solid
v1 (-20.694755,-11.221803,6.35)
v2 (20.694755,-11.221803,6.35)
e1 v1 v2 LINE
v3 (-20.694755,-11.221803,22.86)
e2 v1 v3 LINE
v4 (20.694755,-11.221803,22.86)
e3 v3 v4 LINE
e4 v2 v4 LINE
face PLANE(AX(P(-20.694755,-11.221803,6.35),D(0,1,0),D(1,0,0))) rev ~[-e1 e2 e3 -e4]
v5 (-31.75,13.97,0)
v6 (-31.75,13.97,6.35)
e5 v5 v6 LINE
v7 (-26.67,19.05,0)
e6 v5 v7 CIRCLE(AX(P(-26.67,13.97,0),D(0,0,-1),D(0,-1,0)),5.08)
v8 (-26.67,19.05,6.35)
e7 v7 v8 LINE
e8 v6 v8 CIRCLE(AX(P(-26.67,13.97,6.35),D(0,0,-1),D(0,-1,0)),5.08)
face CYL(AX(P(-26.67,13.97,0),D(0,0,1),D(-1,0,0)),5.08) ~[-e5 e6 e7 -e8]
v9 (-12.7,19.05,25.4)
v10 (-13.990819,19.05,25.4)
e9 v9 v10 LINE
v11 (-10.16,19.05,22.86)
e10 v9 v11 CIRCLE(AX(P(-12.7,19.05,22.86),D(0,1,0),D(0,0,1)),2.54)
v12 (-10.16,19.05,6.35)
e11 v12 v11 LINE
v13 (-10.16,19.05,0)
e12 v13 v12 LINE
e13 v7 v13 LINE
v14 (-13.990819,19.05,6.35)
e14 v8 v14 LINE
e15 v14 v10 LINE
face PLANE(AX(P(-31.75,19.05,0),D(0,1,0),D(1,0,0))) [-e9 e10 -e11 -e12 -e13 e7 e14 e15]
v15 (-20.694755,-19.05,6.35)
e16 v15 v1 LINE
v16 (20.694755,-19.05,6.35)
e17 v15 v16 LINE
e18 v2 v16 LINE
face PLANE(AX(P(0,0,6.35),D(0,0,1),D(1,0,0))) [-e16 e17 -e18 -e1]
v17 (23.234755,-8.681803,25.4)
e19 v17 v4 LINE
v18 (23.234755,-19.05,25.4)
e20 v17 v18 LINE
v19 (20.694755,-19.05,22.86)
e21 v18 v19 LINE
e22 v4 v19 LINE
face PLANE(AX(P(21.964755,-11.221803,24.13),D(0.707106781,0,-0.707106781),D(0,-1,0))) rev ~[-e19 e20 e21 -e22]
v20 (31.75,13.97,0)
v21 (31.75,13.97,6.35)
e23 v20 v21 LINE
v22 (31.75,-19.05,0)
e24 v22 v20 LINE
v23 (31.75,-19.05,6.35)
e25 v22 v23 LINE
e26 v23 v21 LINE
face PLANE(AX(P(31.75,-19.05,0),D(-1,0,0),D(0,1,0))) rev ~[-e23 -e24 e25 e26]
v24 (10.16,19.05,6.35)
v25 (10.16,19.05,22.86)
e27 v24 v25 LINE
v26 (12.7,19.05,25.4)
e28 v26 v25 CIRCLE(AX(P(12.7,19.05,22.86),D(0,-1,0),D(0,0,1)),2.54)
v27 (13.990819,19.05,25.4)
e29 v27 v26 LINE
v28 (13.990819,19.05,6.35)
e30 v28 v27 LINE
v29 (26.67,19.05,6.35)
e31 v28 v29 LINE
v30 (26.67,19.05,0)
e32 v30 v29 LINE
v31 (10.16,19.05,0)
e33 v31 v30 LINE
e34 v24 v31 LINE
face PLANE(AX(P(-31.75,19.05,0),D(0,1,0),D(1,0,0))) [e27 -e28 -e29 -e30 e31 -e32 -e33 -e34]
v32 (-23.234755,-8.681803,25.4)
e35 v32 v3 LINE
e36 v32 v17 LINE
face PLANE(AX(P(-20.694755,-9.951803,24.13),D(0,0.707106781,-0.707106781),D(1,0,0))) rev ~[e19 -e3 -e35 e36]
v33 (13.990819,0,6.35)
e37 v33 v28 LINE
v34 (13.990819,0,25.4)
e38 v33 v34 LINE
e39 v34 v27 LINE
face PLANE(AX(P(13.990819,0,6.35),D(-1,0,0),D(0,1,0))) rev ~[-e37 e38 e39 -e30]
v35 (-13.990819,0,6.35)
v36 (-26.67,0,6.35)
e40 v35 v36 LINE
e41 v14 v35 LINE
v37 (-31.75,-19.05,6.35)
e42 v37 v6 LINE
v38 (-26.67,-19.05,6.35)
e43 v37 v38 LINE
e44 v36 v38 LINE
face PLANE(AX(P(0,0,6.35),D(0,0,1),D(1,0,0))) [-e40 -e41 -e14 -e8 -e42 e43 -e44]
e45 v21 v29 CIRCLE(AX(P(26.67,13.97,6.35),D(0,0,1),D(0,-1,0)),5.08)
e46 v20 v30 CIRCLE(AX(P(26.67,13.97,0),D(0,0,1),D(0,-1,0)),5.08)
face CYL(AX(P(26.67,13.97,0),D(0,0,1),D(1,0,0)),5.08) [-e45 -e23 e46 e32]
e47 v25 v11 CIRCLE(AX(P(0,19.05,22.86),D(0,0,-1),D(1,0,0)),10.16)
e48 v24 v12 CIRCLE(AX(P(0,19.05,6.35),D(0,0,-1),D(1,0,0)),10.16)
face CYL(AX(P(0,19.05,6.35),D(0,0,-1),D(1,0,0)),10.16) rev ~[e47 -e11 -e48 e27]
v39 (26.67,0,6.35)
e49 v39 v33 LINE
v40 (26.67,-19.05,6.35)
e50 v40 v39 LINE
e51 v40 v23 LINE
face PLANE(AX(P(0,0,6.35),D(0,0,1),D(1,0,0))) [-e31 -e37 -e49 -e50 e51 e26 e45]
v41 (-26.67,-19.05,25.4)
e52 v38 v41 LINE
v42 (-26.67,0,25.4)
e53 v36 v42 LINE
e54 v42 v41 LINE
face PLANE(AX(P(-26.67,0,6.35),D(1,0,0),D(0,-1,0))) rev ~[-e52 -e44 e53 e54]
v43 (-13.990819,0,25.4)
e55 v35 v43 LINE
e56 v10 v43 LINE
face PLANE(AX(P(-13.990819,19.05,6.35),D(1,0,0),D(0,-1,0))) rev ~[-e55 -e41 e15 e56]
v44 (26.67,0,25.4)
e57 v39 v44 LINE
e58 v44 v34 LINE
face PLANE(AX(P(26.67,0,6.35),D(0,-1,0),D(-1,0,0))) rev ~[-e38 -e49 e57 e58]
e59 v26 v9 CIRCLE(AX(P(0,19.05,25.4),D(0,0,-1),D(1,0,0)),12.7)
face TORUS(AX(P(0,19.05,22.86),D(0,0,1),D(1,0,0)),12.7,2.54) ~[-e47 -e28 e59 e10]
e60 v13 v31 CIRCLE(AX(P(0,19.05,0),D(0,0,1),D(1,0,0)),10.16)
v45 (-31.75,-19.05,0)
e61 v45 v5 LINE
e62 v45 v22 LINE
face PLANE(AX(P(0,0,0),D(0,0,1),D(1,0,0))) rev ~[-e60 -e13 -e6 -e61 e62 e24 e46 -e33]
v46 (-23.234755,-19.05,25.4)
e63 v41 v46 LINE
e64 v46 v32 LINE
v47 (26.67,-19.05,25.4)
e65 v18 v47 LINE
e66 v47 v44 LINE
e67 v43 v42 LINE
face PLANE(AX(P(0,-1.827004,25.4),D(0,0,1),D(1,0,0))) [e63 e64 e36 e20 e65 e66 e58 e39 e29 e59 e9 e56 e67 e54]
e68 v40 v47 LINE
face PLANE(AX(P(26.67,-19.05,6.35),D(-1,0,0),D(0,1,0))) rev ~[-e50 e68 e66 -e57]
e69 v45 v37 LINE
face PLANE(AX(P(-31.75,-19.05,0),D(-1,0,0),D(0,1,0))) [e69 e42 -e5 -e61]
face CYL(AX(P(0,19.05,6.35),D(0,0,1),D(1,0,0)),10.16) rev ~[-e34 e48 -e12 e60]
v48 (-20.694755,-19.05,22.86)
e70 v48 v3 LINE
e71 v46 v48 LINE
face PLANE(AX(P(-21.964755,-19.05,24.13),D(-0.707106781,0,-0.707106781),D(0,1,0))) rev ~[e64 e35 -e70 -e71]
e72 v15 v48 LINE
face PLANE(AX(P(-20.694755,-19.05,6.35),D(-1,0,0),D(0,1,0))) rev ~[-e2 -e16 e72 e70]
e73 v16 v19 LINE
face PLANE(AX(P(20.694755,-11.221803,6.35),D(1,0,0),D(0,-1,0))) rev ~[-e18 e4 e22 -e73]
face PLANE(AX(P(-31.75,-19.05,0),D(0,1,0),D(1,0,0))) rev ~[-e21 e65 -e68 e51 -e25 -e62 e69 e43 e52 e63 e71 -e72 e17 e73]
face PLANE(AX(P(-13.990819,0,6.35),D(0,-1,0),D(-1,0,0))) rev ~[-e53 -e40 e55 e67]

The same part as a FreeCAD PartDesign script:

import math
import FreeCAD as App
import Part
import Sketcher
Q = App.Units.Quantity


def edges_at(feature, points):
    """Names of the edges that pass closest to the given points."""
    edges = feature.Shape.Edges
    near = lambda p: min(range(len(edges)), key=lambda i: edges[i].distToShape(Part.Vertex(*p))[0])
    return sorted({f"Edge{near(p) + 1}" for p in points})

doc = App.newDocument("Part")
params = doc.addObject("Spreadsheet::Sheet", "Params")
for row, (alias, value) in enumerate([
    ("sketch1_width", "2.5 in"),
    ("sketch1_height", "1.5 in"),
    ("pad1_length", "0.25 in"),
    ("fillet_radius", "0.2 in"),
    ("sketch2_radius", "0.4 in"),
    ("sketch2_height", "0.75 in"),
    ("pad2_length", "0.75 in"),
    ("sketch3_diameter", "0.8 in"),
    ("pocket1_length", "1 in"),
    ("fillet2_radius", "0.1 in"),
    ("chamfer_size", "0.1 in"),
], start=1):
    params.set(f"A{row}", alias)
    params.set(f"B{row}", "=" + value)
    params.setAlias(f"B{row}", alias)

body = doc.addObject("PartDesign::Body", "Body")

sketch1 = doc.addObject("Sketcher::SketchObject", "Sketch")
body.addObject(sketch1)
sketch1.AttachmentSupport = (doc.XY_Plane, [""])
sketch1.MapMode = "FlatFace"
sketch1.addGeometry(Part.LineSegment(App.Vector(-32, 19, 0), App.Vector(-32, -19, 0)), False)
sketch1.addGeometry(Part.LineSegment(App.Vector(-32, -19, 0), App.Vector(32, -19, 0)), False)
sketch1.addGeometry(Part.LineSegment(App.Vector(32, -19, 0), App.Vector(32, 19, 0)), False)
sketch1.addGeometry(Part.LineSegment(App.Vector(32, 19, 0), App.Vector(-32, 19, 0)), False)
sketch1.addConstraint(Sketcher.Constraint("Coincident", 0, 2, 1, 1))
sketch1.addConstraint(Sketcher.Constraint("Coincident", 1, 2, 2, 1))
sketch1.addConstraint(Sketcher.Constraint("Coincident", 2, 2, 3, 1))
sketch1.addConstraint(Sketcher.Constraint("Coincident", 3, 2, 0, 1))
sketch1.addConstraint(Sketcher.Constraint("Vertical", 0))
sketch1.addConstraint(Sketcher.Constraint("Horizontal", 1))
sketch1.addConstraint(Sketcher.Constraint("Vertical", 2))
sketch1.addConstraint(Sketcher.Constraint("Horizontal", 3))
sketch1.addConstraint(Sketcher.Constraint("Symmetric", 0, 2, 2, 2, -1, 1))
sketch1.addConstraint(Sketcher.Constraint("DistanceX", 1, 1, 1, 2, Q("2.5 in")))
sketch1.addConstraint(Sketcher.Constraint("DistanceY", 0, 2, 0, 1, Q("1.5 in")))
sketch1.setExpression("Constraints[9]", "Params.sketch1_width")
sketch1.setExpression("Constraints[10]", "Params.sketch1_height")
pad1 = doc.addObject("PartDesign::Pad", "Pad")
body.addObject(pad1)
pad1.Profile = sketch1
pad1.setExpression("Length", "Params.pad1_length")
doc.recompute()

fillet = doc.addObject("PartDesign::Fillet", "Fillet")
body.addObject(fillet)
fillet.Base = (pad1, edges_at(pad1, [(-31.75, 19.05, 3.175), (31.75, 19.05, 3.175)]))
fillet.setExpression("Radius", "Params.fillet_radius")

sketch2 = doc.addObject("Sketcher::SketchObject", "Sketch001")
body.addObject(sketch2)
sketch2.AttachmentSupport = (doc.XY_Plane, [""])
sketch2.MapMode = "FlatFace"
sketch2.AttachmentOffset = App.Placement(App.Vector(0, 0, 0.25 * 25.4), App.Rotation())
sketch2.addGeometry(Part.LineSegment(App.Vector(14, 19.1, 0), App.Vector(10.2, 19.1, 0)), False)
sketch2.addGeometry(Part.ArcOfCircle(Part.Circle(App.Vector(0, 19.1, 0), App.Vector(0, 0, 1), 10.2), math.radians(180), math.radians(360)), False)
sketch2.addGeometry(Part.LineSegment(App.Vector(-10.2, 19.1, 0), App.Vector(-14, 19.1, 0)), False)
sketch2.addGeometry(Part.LineSegment(App.Vector(-14, 19.1, 0), App.Vector(-14, 0, 0)), False)
sketch2.addGeometry(Part.LineSegment(App.Vector(-14, 0, 0), App.Vector(-26.7, 0, 0)), False)
sketch2.addGeometry(Part.LineSegment(App.Vector(-26.7, 0, 0), App.Vector(-26.7, -19.1, 0)), False)
sketch2.addGeometry(Part.LineSegment(App.Vector(-26.7, -19.1, 0), App.Vector(-20.7, -19.1, 0)), False)
sketch2.addGeometry(Part.LineSegment(App.Vector(-20.7, -19.1, 0), App.Vector(-20.7, -11.2, 0)), False)
sketch2.addGeometry(Part.LineSegment(App.Vector(-20.7, -11.2, 0), App.Vector(20.7, -11.2, 0)), False)
sketch2.addGeometry(Part.LineSegment(App.Vector(20.7, -11.2, 0), App.Vector(20.7, -19.1, 0)), False)
sketch2.addGeometry(Part.LineSegment(App.Vector(20.7, -19.1, 0), App.Vector(26.7, -19.1, 0)), False)
sketch2.addGeometry(Part.LineSegment(App.Vector(26.7, -19.1, 0), App.Vector(26.7, 0, 0)), False)
sketch2.addGeometry(Part.LineSegment(App.Vector(26.7, 0, 0), App.Vector(14, 0, 0)), False)
sketch2.addGeometry(Part.LineSegment(App.Vector(14, 0, 0), App.Vector(14, 19.1, 0)), False)
sketch2.addConstraint(Sketcher.Constraint("Coincident", 0, 2, 1, 2))
sketch2.addConstraint(Sketcher.Constraint("Coincident", 1, 1, 2, 1))
sketch2.addConstraint(Sketcher.Constraint("Coincident", 2, 2, 3, 1))
sketch2.addConstraint(Sketcher.Constraint("Coincident", 3, 2, 4, 1))
sketch2.addConstraint(Sketcher.Constraint("Coincident", 4, 2, 5, 1))
sketch2.addConstraint(Sketcher.Constraint("Coincident", 5, 2, 6, 1))
sketch2.addConstraint(Sketcher.Constraint("Coincident", 6, 2, 7, 1))
sketch2.addConstraint(Sketcher.Constraint("Coincident", 7, 2, 8, 1))
sketch2.addConstraint(Sketcher.Constraint("Coincident", 8, 2, 9, 1))
sketch2.addConstraint(Sketcher.Constraint("Coincident", 9, 2, 10, 1))
sketch2.addConstraint(Sketcher.Constraint("Coincident", 10, 2, 11, 1))
sketch2.addConstraint(Sketcher.Constraint("Coincident", 11, 2, 12, 1))
sketch2.addConstraint(Sketcher.Constraint("Coincident", 12, 2, 13, 1))
sketch2.addConstraint(Sketcher.Constraint("Coincident", 13, 2, 0, 1))
sketch2.addConstraint(Sketcher.Constraint("Horizontal", 0))
sketch2.addConstraint(Sketcher.Constraint("Horizontal", 2))
sketch2.addConstraint(Sketcher.Constraint("Vertical", 3))
sketch2.addConstraint(Sketcher.Constraint("Horizontal", 4))
sketch2.addConstraint(Sketcher.Constraint("Vertical", 5))
sketch2.addConstraint(Sketcher.Constraint("Horizontal", 6))
sketch2.addConstraint(Sketcher.Constraint("Vertical", 7))
sketch2.addConstraint(Sketcher.Constraint("Horizontal", 8))
sketch2.addConstraint(Sketcher.Constraint("Vertical", 9))
sketch2.addConstraint(Sketcher.Constraint("Horizontal", 10))
sketch2.addConstraint(Sketcher.Constraint("Vertical", 11))
sketch2.addConstraint(Sketcher.Constraint("Horizontal", 12))
sketch2.addConstraint(Sketcher.Constraint("Vertical", 13))
sketch2.addConstraint(Sketcher.Constraint("Symmetric", 4, 2, 11, 2, -1, 1))
sketch2.addConstraint(Sketcher.Constraint("Symmetric", 0, 2, 1, 1, -2))
sketch2.addConstraint(Sketcher.Constraint("Symmetric", 6, 2, 9, 2, -2))
sketch2.addConstraint(Sketcher.Constraint("Symmetric", 3, 2, 12, 2, -2))
sketch2.addConstraint(Sketcher.Constraint("Horizontal", 1, 3, 0, 2))
sketch2.addConstraint(Sketcher.Constraint("Equal", 3, 5))
sketch2.addConstraint(Sketcher.Constraint("Radius", 1, Q("0.4 in")))
sketch2.addConstraint(Sketcher.Constraint("DistanceY", 3, 2, 3, 1, Q("0.75 in")))
sketch2.addConstraint(Sketcher.Constraint("DistanceX", 4, 2, -1, 1, Q("1.05 in")))
sketch2.addConstraint(Sketcher.Constraint("DistanceX", 0, 2, 0, 1, 3.830819))
sketch2.addConstraint(Sketcher.Constraint("DistanceX", 8, 1, 8, 2, 41.38951))
sketch2.addConstraint(Sketcher.Constraint("DistanceY", 7, 1, 7, 2, 7.828197))
sketch2.setExpression("Constraints[33]", "Params.sketch2_radius")
sketch2.setExpression("Constraints[34]", "Params.sketch2_height")
pad2 = doc.addObject("PartDesign::Pad", "Pad001")
body.addObject(pad2)
pad2.Profile = sketch2
pad2.setExpression("Length", "Params.pad2_length")

sketch3 = doc.addObject("Sketcher::SketchObject", "Sketch002")
body.addObject(sketch3)
sketch3.AttachmentSupport = (doc.XY_Plane, [""])
sketch3.MapMode = "FlatFace"
sketch3.AttachmentOffset = App.Placement(App.Vector(0, 0, 0.25 * 25.4), App.Rotation())
sketch3.addGeometry(Part.Circle(App.Vector(0, 19, 0), App.Vector(0, 0, 1), 10), False)
sketch3.addConstraint(Sketcher.Constraint("PointOnObject", 0, 3, -2))
sketch3.addConstraint(Sketcher.Constraint("Diameter", 0, Q("0.8 in")))
sketch3.addConstraint(Sketcher.Constraint("DistanceY", -1, 1, 0, 3, Q("0.75 in")))
sketch3.setExpression("Constraints[1]", "Params.sketch3_diameter")
pocket1 = doc.addObject("PartDesign::Pocket", "Pocket")
body.addObject(pocket1)
pocket1.Profile = sketch3
pocket1.setExpression("Length", "Params.pocket1_length")
doc.recompute()

fillet2 = doc.addObject("PartDesign::Fillet", "Fillet001")
body.addObject(fillet2)
fillet2.Base = (pocket1, edges_at(pocket1, [(0, 8.89, 25.4)]))
fillet2.setExpression("Radius", "Params.fillet2_radius")
doc.recompute()

chamfer = doc.addObject("PartDesign::Chamfer", "Chamfer")
body.addObject(chamfer)
chamfer.Base = (fillet2, edges_at(fillet2, [(0, -11.222, 25.4), (-20.695, -15.136, 25.4), (20.695, -15.136, 25.4)]))
chamfer.setExpression("Size", "Params.chamfer_size")

doc.recompute()
